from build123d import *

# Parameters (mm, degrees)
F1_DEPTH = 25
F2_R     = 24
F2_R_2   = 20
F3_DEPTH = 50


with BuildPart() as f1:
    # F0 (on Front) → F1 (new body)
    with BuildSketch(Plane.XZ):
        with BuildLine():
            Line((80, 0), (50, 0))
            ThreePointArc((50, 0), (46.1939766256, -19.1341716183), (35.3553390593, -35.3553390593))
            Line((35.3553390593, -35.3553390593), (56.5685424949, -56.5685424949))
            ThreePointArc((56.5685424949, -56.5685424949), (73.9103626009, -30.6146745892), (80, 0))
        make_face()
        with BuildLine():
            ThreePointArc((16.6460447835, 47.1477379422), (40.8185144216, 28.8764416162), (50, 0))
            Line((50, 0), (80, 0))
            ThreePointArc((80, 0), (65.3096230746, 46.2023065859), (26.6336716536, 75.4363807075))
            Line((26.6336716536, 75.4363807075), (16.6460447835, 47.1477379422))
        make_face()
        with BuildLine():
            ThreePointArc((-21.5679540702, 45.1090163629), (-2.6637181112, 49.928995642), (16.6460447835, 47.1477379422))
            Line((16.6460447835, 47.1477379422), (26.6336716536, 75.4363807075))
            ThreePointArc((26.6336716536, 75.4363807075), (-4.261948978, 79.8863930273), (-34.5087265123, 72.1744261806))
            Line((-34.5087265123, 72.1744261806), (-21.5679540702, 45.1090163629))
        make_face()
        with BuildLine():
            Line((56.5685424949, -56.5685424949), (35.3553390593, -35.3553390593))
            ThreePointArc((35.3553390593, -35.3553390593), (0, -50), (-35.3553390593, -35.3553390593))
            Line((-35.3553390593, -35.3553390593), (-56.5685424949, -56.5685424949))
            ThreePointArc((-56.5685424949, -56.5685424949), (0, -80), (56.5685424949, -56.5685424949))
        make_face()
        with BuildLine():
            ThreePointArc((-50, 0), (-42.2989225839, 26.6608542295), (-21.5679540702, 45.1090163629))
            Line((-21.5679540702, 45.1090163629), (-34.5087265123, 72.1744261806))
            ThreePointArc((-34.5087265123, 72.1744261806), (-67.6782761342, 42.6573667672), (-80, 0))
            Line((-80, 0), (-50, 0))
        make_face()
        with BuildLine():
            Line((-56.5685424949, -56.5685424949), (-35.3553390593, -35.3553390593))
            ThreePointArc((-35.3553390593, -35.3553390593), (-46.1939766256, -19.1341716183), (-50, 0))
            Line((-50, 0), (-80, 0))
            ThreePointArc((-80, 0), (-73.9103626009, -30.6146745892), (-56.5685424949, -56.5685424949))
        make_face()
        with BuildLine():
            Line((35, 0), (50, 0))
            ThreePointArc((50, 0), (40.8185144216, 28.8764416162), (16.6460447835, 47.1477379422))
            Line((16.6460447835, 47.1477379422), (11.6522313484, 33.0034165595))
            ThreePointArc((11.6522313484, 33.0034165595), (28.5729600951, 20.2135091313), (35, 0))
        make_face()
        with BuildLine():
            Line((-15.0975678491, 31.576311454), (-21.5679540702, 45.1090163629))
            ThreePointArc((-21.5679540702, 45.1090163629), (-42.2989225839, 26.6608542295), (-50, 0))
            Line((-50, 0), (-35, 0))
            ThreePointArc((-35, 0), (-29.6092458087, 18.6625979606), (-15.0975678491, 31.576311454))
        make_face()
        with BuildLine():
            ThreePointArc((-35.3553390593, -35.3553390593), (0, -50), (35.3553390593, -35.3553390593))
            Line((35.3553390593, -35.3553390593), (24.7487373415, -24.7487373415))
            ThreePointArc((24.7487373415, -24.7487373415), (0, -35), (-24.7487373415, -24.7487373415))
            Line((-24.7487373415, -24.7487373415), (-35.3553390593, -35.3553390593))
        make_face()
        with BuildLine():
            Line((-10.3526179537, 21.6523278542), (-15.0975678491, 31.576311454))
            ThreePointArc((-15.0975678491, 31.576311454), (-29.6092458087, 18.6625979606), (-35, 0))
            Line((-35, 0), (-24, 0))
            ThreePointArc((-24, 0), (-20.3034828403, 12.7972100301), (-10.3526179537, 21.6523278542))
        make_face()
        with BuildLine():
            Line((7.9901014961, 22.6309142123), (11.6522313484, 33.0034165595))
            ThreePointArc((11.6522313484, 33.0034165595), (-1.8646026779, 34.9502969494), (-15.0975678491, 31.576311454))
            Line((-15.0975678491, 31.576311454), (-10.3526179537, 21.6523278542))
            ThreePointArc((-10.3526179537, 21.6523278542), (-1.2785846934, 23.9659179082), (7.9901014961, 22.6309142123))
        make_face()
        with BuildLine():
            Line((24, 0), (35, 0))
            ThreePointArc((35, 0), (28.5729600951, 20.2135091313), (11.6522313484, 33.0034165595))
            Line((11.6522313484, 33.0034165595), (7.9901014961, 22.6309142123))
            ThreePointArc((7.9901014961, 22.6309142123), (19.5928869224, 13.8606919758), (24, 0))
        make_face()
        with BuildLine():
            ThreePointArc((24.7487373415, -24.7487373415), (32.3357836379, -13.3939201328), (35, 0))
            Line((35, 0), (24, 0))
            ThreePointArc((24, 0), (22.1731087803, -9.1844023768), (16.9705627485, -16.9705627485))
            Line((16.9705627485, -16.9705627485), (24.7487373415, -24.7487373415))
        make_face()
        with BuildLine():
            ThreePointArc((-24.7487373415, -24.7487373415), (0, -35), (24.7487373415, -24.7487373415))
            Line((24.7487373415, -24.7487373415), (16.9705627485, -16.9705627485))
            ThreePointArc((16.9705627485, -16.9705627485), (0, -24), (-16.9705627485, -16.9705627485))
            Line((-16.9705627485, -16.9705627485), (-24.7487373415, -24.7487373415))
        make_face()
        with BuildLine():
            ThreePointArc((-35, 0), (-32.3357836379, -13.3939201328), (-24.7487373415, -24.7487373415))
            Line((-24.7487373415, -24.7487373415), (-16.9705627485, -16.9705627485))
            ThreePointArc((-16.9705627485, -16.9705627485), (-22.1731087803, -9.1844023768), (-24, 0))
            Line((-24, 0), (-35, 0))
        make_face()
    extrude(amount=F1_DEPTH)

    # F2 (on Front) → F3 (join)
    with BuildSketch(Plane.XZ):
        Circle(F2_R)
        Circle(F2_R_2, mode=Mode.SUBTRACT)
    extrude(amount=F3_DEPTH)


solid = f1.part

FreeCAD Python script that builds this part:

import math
import FreeCAD as App
import Part
import Sketcher

V = App.Vector

doc = App.newDocument("Part")
body = doc.addObject("PartDesign::Body", "Body")

# Sketch on XZ plane
sketch1 = doc.addObject("Sketcher::SketchObject", "Sketch")
body.addObject(sketch1)
sketch1.AttachmentSupport = (doc.XZ_Plane, [""])
sketch1.MapMode = "FlatFace"
sketch1.addGeometry([
    Part.ArcOfCircle(Part.Circle(V(0, 0, 0), V(0, 0, 1), 80), math.radians(-135), math.radians(-45)),  # 0
    Part.ArcOfCircle(Part.Circle(V(0, 0, 0), V(0, 0, 1), 80), math.radians(-45), math.radians(0)),  # 1
    Part.ArcOfCircle(Part.Circle(V(0, 0, 0), V(0, 0, 1), 80), math.radians(0), math.radians(70.553842)),  # 2
    Part.ArcOfCircle(Part.Circle(V(0, 0, 0), V(0, 0, 1), 80), math.radians(70.553842), math.radians(115.553842)),  # 3
    Part.ArcOfCircle(Part.Circle(V(0, 0, 0), V(0, 0, 1), 80), math.radians(115.553842), math.radians(180)),  # 4
    Part.ArcOfCircle(Part.Circle(V(0, 0, 0), V(0, 0, 1), 80), math.radians(180), math.radians(225)),  # 5
    Part.ArcOfCircle(Part.Circle(V(0, 0, 0), V(0, 0, 1), 24), math.radians(-135), math.radians(0)),  # 6
    Part.ArcOfCircle(Part.Circle(V(0, 0, 0), V(0, 0, 1), 24), math.radians(180), math.radians(225)),  # 7
    Part.ArcOfCircle(Part.Circle(V(0, 0, 0), V(0, 0, 1), 24), math.radians(115.553842), math.radians(180)),  # 8
    Part.ArcOfCircle(Part.Circle(V(0, 0, 0), V(0, 0, 1), 24), math.radians(70.553842), math.radians(115.553842)),  # 9
    Part.ArcOfCircle(Part.Circle(V(0, 0, 0), V(0, 0, 1), 24), math.radians(0), math.radians(70.553842)),  # 10
    Part.LineSegment(V(-24.748737, -24.748737, 0), V(-35.355339, -35.355339, 0)),  # 11
    Part.ArcOfCircle(Part.Circle(V(0, 0, 0), V(0, 0, 1), 50), math.radians(180), math.radians(225)),  # 12
    Part.LineSegment(V(-50, 0, 0), V(-35, 0, 0)),  # 13
    Part.ArcOfCircle(Part.Circle(V(0, 0, 0), V(0, 0, 1), 35), math.radians(180), math.radians(225)),  # 14
    Part.LineSegment(V(35.355339, -35.355339, 0), V(24.748737, -24.748737, 0)),  # 15
    Part.ArcOfCircle(Part.Circle(V(0, 0, 0), V(0, 0, 1), 35), math.radians(-45), math.radians(0)),  # 16
    Part.LineSegment(V(35, 0, 0), V(50, 0, 0)),  # 17
    Part.ArcOfCircle(Part.Circle(V(0, 0, 0), V(0, 0, 1), 50), math.radians(-45), math.radians(0)),  # 18
    Part.LineSegment(V(16.646045, 47.147738, 0), V(11.652231, 33.003417, 0)),  # 19
    Part.ArcOfCircle(Part.Circle(V(0, 0, 0), V(0, 0, 1), 35), math.radians(70.553842), math.radians(115.553842)),  # 20
    Part.LineSegment(V(-15.097568, 31.576311, 0), V(-21.567954, 45.109016, 0)),  # 21
    Part.ArcOfCircle(Part.Circle(V(0, 0, 0), V(0, 0, 1), 50), math.radians(70.553842), math.radians(115.553842)),  # 22
], False)
sketch1.addConstraint([
    Sketcher.Constraint("Tangent", 0, 2, 1, 1),
    Sketcher.Constraint("Tangent", 1, 2, 2, 1),
    Sketcher.Constraint("Tangent", 2, 2, 3, 1),
    Sketcher.Constraint("Tangent", 3, 2, 4, 1),
    Sketcher.Constraint("Tangent", 4, 2, 5, 1),
    Sketcher.Constraint("Tangent", 5, 2, 0, 1),
    Sketcher.Constraint("Tangent", 6, 1, 7, 2),
    Sketcher.Constraint("Tangent", 7, 1, 8, 2),
    Sketcher.Constraint("Tangent", 8, 1, 9, 2),
    Sketcher.Constraint("Tangent", 9, 1, 10, 2),
    Sketcher.Constraint("Tangent", 10, 1, 6, 2),
    Sketcher.Constraint("Coincident", 11, 2, 12, 2),
    Sketcher.Constraint("Coincident", 12, 1, 13, 1),
    Sketcher.Constraint("Coincident", 13, 2, 14, 1),
    Sketcher.Constraint("Coincident", 14, 2, 11, 1),
    Sketcher.Constraint("Coincident", 15, 2, 16, 1),
    Sketcher.Constraint("Coincident", 16, 2, 17, 1),
    Sketcher.Constraint("Coincident", 17, 2, 18, 2),
    Sketcher.Constraint("Coincident", 18, 1, 15, 1),
    Sketcher.Constraint("Coincident", 19, 2, 20, 1),
    Sketcher.Constraint("Coincident", 20, 2, 21, 1),
    Sketcher.Constraint("Coincident", 21, 2, 22, 2),
    Sketcher.Constraint("Coincident", 22, 1, 19, 1),
    Sketcher.Constraint("Horizontal", 13),
    Sketcher.Constraint("Horizontal", 17),
    Sketcher.Constraint("Coincident", 0, 3, -1, 1),
    Sketcher.Constraint("Coincident", 2, 3, -1, 1),
    Sketcher.Constraint("Coincident", 6, 3, -1, 1),
    Sketcher.Constraint("Coincident", 8, 3, -1, 1),
    Sketcher.Constraint("Coincident", 12, 3, -1, 1),
    Sketcher.Constraint("Coincident", 14, 3, -1, 1),
    Sketcher.Constraint("Coincident", 16, 3, -1, 1),
    Sketcher.Constraint("Coincident", 18, 3, -1, 1),
    Sketcher.Constraint("Coincident", 20, 3, -1, 1),
    Sketcher.Constraint("Coincident", 22, 3, -1, 1),
    Sketcher.Constraint("Equal", 2, 3),
    Sketcher.Constraint("Equal", 14, 16),
    Sketcher.Constraint("Equal", 12, 18),
    Sketcher.Constraint("Equal", 16, 20),
    Sketcher.Constraint("Equal", 18, 22),
    Sketcher.Constraint("PointOnObject", 1, 2, -1),
    Sketcher.Constraint("PointOnObject", 4, 2, -1),
    Sketcher.Constraint("PointOnObject", 7, 1, -1),
    Sketcher.Constraint("PointOnObject", 10, 1, -1),
    Sketcher.Constraint("PointOnObject", 12, 1, -1),
    Sketcher.Constraint("PointOnObject", 16, 2, -1),
    Sketcher.Constraint("Perpendicular", 11, 15),
    Sketcher.Constraint("Horizontal", 0, 2, 5, 2),
    Sketcher.Constraint("Horizontal", 14, 2, 15, 2),
    Sketcher.Constraint("Horizontal", 11, 2, 18, 1),
    Sketcher.Constraint("Radius", 0, 80.0),
    Sketcher.Constraint("Radius", 6, 24.0),
    Sketcher.Constraint("Radius", 12, 50.0),
    Sketcher.Constraint("Radius", 14, 35.0),
    Sketcher.Constraint("DistanceX", -1, 1, 9, 1, 7.990101),
    Sketcher.Constraint("DistanceX", 3, 2, 2, 2, 61.142398),
    Sketcher.Constraint("DistanceX", 20, 2, 19, 2, 26.749799),
    Sketcher.Constraint("DistanceY", 19, 2, 21, 2, 12.1056),
    Sketcher.Constraint("DistanceX", -1, 1, 2, 2, 26.633672),
    Sketcher.Constraint("DistanceX", 11, 2, -1, 1, 35.355339),
    Sketcher.Constraint("DistanceX", -1, 1, 19, 2, 11.652231),
    Sketcher.Constraint("DistanceX", 8, 1, 9, 1, 18.342719),
    Sketcher.Constraint("DistanceY", 19, 2, 22, 1, 14.144321),
    Sketcher.Constraint("DistanceX", -1, 1, 0, 2, 56.568542),
    Sketcher.Constraint("DistanceX", 6, 1, -1, 1, 16.970563),
])
pad1 = doc.addObject("PartDesign::Pad", "Pad")
body.addObject(pad1)
pad1.Profile = sketch1
pad1.Length = 25

# Sketch on XZ plane
sketch2 = doc.addObject("Sketcher::SketchObject", "Sketch001")
body.addObject(sketch2)
sketch2.AttachmentSupport = (doc.XZ_Plane, [""])
sketch2.MapMode = "FlatFace"
sketch2.addGeometry([
    Part.Circle(V(0, 0, 0), V(0, 0, 1), 24),
    Part.Circle(V(0, 0, 0), V(0, 0, 1), 20),
], False)
sketch2.addConstraint([
    Sketcher.Constraint("Coincident", 0, 3, -1, 1),
    Sketcher.Constraint("Coincident", 1, 3, -1, 1),
    Sketcher.Constraint("Diameter", 0, 48.0),
    Sketcher.Constraint("Diameter", 1, 40.0),
])
pad2 = doc.addObject("PartDesign::Pad", "Pad001")
body.addObject(pad2)
pad2.Profile = sketch2
pad2.Length = 50

doc.recompute()
